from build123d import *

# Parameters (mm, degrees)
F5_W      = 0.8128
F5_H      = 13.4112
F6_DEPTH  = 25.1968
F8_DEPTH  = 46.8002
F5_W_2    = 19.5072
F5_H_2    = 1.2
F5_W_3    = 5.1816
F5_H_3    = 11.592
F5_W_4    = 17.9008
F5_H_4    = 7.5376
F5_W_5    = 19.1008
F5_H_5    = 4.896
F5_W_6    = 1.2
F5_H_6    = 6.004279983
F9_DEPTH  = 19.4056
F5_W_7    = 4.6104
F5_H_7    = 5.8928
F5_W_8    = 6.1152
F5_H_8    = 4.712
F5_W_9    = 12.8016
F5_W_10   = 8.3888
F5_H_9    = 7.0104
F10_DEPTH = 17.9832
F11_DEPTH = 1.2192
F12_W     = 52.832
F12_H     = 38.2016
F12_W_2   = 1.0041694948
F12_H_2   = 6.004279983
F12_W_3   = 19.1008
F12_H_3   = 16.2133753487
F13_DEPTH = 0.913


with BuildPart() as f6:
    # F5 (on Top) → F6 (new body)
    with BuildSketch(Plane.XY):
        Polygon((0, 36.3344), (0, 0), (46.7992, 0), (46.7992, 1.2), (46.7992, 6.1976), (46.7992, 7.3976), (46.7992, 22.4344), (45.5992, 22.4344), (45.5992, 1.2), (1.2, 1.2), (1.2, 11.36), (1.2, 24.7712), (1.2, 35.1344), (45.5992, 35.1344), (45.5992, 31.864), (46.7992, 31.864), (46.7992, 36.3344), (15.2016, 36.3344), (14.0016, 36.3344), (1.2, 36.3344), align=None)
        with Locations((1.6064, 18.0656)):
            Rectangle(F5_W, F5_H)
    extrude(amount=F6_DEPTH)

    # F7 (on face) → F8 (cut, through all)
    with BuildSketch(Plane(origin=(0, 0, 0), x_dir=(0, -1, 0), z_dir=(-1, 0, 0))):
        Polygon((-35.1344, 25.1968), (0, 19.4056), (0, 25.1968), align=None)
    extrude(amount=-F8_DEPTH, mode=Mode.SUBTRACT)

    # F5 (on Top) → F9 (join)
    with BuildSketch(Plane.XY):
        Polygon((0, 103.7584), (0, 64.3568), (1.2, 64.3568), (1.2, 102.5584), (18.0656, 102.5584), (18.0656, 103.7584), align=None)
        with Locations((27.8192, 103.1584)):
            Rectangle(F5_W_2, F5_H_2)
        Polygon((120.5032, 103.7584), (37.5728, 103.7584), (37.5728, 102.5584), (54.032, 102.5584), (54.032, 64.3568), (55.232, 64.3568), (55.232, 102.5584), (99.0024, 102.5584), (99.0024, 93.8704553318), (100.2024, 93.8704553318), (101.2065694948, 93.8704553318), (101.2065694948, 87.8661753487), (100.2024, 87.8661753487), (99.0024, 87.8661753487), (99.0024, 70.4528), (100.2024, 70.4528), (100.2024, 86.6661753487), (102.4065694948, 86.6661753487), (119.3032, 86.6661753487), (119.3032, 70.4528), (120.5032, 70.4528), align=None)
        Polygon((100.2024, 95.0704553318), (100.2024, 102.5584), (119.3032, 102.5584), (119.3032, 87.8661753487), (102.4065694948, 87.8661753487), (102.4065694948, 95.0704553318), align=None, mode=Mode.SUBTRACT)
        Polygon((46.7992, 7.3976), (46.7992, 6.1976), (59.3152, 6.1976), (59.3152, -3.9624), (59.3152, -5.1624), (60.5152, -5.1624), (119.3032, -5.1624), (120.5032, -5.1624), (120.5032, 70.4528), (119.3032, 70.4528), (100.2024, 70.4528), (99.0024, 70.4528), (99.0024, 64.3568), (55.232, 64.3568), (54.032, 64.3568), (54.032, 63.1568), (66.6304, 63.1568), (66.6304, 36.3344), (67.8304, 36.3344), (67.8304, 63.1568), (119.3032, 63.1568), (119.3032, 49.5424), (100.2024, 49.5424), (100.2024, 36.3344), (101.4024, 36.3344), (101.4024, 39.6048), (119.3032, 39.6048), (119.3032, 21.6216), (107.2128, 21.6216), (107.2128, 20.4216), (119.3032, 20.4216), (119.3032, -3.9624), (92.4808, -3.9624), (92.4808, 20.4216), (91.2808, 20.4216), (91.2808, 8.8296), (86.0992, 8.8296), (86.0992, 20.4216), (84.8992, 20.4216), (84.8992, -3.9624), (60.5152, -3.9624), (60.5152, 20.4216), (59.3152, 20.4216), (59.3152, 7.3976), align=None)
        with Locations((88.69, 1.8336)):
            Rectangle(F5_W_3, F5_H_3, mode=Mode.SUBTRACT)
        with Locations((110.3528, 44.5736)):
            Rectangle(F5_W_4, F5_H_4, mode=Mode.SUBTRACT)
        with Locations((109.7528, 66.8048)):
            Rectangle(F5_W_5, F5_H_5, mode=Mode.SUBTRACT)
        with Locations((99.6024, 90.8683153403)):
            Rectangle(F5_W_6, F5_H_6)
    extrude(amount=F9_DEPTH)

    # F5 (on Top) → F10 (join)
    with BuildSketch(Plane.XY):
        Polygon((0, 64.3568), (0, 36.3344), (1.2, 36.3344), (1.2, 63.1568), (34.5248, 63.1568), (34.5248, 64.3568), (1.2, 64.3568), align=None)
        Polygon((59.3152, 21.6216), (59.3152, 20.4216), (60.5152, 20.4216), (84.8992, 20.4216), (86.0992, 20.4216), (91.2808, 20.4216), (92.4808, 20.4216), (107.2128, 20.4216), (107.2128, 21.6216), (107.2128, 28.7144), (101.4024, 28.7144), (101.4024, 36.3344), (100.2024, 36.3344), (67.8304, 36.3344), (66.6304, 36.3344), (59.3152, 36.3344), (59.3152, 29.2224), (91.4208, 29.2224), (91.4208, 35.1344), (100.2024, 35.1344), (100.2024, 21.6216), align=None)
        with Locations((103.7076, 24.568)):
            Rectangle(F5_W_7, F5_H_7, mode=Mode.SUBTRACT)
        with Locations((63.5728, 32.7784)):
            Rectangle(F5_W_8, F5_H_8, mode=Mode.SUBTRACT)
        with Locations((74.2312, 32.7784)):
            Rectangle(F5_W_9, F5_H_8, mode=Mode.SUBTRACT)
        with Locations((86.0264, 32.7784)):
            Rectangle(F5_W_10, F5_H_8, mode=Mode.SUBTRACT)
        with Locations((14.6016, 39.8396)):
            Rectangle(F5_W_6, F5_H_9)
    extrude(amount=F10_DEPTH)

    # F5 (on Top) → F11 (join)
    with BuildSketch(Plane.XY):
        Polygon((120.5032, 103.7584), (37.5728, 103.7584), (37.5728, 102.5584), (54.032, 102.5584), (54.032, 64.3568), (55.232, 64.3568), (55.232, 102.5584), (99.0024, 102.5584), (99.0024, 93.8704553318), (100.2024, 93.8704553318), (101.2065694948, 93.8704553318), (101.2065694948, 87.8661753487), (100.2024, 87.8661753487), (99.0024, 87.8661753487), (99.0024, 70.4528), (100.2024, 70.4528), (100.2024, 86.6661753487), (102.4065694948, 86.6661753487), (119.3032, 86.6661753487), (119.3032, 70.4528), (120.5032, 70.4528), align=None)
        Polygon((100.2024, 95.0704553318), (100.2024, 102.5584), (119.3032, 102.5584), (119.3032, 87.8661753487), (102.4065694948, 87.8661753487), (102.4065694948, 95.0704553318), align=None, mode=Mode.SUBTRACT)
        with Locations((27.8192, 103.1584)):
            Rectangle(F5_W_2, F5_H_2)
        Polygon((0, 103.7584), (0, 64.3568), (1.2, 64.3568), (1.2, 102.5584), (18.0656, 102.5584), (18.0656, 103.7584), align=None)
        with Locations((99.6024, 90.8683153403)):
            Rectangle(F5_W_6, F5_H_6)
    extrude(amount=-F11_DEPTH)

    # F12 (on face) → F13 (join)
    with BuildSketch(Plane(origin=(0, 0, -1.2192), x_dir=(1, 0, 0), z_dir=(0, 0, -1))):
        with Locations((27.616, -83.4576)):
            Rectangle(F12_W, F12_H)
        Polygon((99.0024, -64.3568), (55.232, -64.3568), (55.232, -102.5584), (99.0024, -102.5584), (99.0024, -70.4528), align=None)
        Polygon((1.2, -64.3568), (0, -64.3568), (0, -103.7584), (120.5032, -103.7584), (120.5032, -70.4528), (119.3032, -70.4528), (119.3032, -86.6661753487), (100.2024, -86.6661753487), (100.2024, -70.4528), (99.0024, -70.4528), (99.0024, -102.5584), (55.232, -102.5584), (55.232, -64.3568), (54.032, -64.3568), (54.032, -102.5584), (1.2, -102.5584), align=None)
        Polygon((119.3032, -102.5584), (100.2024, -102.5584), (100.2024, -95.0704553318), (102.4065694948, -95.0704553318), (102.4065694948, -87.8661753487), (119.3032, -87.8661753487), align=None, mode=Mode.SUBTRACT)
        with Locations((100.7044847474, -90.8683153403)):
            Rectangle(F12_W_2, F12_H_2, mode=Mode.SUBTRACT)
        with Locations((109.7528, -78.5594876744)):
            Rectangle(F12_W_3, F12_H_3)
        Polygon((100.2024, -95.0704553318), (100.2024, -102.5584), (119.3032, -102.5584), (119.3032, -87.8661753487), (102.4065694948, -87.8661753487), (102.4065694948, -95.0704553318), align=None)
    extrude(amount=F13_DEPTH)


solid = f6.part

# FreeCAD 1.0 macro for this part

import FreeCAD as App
import Part
import Sketcher

V = App.Vector
Q = App.Units.Quantity


def add_polygon(sketch, points):
    """Adds a closed chain of lines whose ends are joined by coincident constraints."""
    first, n = sketch.GeometryCount, len(points)
    for a, b in zip(points, points[1:] + points[:1]):
        sketch.addGeometry(Part.LineSegment(App.Vector(*a, 0), App.Vector(*b, 0)), False)
    for i in range(n):
        sketch.addConstraint(Sketcher.Constraint("Coincident", first + i, 2, first + (i + 1) % n, 1))

doc = App.newDocument("Part")
body = doc.addObject("PartDesign::Body", "Body")

# Sketch on XY plane
sketch1 = body.newObject("Sketcher::SketchObject", "Sketch")
sketch1.AttachmentSupport = (doc.getObject("XY_Plane"), [""])
sketch1.MapMode = "FlatFace"
add_polygon(sketch1, [(0, 36.3), (0, 0), (46.8, 0), (46.8, 22.4), (45.6, 22.4), (45.6, 1.2), (1.2, 1.2), (1.2, 11.4), (2, 11.4), (2, 24.8), (1.2, 24.8), (1.2, 35.1), (45.6, 35.1), (45.6, 31.9), (46.8, 31.9), (46.8, 36.3)])  # lines 0-15
sketch1.addConstraint(Sketcher.Constraint("Vertical", 0))
sketch1.addConstraint(Sketcher.Constraint("Horizontal", 1))
sketch1.addConstraint(Sketcher.Constraint("Vertical", 2))
sketch1.addConstraint(Sketcher.Constraint("Horizontal", 3))
sketch1.addConstraint(Sketcher.Constraint("Vertical", 4))
sketch1.addConstraint(Sketcher.Constraint("Horizontal", 5))
sketch1.addConstraint(Sketcher.Constraint("Vertical", 6))
sketch1.addConstraint(Sketcher.Constraint("Horizontal", 7))
sketch1.addConstraint(Sketcher.Constraint("Vertical", 8))
sketch1.addConstraint(Sketcher.Constraint("Horizontal", 9))
sketch1.addConstraint(Sketcher.Constraint("Vertical", 10))
sketch1.addConstraint(Sketcher.Constraint("Horizontal", 11))
sketch1.addConstraint(Sketcher.Constraint("Vertical", 12))
sketch1.addConstraint(Sketcher.Constraint("Horizontal", 13))
sketch1.addConstraint(Sketcher.Constraint("Vertical", 14))
sketch1.addConstraint(Sketcher.Constraint("Horizontal", 15))
sketch1.addConstraint(Sketcher.Constraint("Coincident", 0, 2, -1, 1))
sketch1.addConstraint(Sketcher.Constraint("Vertical", 6, 2, 9, 2))
sketch1.addConstraint(Sketcher.Constraint("Vertical", 4, 2, 11, 2))
sketch1.addConstraint(Sketcher.Constraint("Vertical", 2, 2, 13, 2))
sketch1.addConstraint(Sketcher.Constraint("DistanceY", 6, 1, 6, 2, Q("0.4 in")))
sketch1.addConstraint(Sketcher.Constraint("DistanceY", 3, 2, 11, 2, Q("0.5 in")))
sketch1.addConstraint(Sketcher.Constraint("DistanceX", 5, 2, 5, 1, Q("1.748 in")))
sketch1.addConstraint(Sketcher.Constraint("DistanceX", 7, 1, 7, 2, Q("0.032 in")))
sketch1.addConstraint(Sketcher.Constraint("DistanceY", 4, 2, 4, 1, Q("0.836 in")))
sketch1.addConstraint(Sketcher.Constraint("DistanceY", 8, 1, 8, 2, Q("0.528 in")))
sketch1.addConstraint(Sketcher.Constraint("DistanceY", 14, 1, 14, 2, Q("0.176 in")))
sketch1.addConstraint(Sketcher.Constraint("DistanceX", 1, 1, 1, 2, Q("46.7992 mm")))
sketch1.addConstraint(Sketcher.Constraint("DistanceX", 3, 2, 3, 1, Q("1.2 mm")))
sketch1.addConstraint(Sketcher.Constraint("DistanceY", 0, 2, 0, 1, Q("36.3344 mm")))
sketch1.addConstraint(Sketcher.Constraint("DistanceY", 2, 1, 2, 2, Q("22.4344 mm")))
pad1 = body.newObject("PartDesign::Pad", "Pad")
pad1.Profile = sketch1
pad1.Length = Q("0.992 in")

# Sketch on YZ plane
sketch2 = body.newObject("Sketcher::SketchObject", "Sketch001")
sketch2.AttachmentSupport = (doc.getObject("YZ_Plane"), [""])
sketch2.MapMode = "FlatFace"
add_polygon(sketch2, [(35, 25), (0, 19), (0, 25)])  # lines 0-2
sketch2.addConstraint(Sketcher.Constraint("Vertical", 1))
sketch2.addConstraint(Sketcher.Constraint("Horizontal", 2))
sketch2.addConstraint(Sketcher.Constraint("PointOnObject", 0, 2, -2))
sketch2.addConstraint(Sketcher.Constraint("DistanceY", 1, 1, 1, 2, Q("0.228 in")))
sketch2.addConstraint(Sketcher.Constraint("DistanceY", -1, 1, 0, 2, Q("0.764 in")))
sketch2.addConstraint(Sketcher.Constraint("DistanceX", 2, 1, 2, 2, Q("35.1344 mm")))
pocket1 = body.newObject("PartDesign::Pocket", "Pocket")
pocket1.Profile = sketch2
pocket1.Type = "ThroughAll"
pocket1.Reversed = True

# Sketch on XY plane
sketch3 = body.newObject("Sketcher::SketchObject", "Sketch002")
sketch3.AttachmentSupport = (doc.getObject("XY_Plane"), [""])
sketch3.MapMode = "FlatFace"
add_polygon(sketch3, [(120.5, 103.8), (0, 103.8), (0, 64.4), (1.2, 64.4), (1.2, 102.6), (54, 102.6), (54, 63.2), (66.6, 63.2), (66.6, 36.3), (67.8, 36.3), (67.8, 63.2), (119.3, 63.2), (119.3, 49.5), (100.2, 49.5), (100.2, 36.3), (101.4, 36.3), (101.4, 39.6), (119.3, 39.6), (119.3, 21.6), (107.2, 21.6), (107.2, 20.4), (119.3, 20.4), (119.3, -4), (92.5, -4), (92.5, 20.4), (91.3, 20.4), (91.3, 8.8), (86.1, 8.8), (86.1, 20.4), (84.9, 20.4), (84.9, -4), (60.5, -4), (60.5, 20.4), (59.3, 20.4), (59.3, 7.4), (46.8, 7.4), (46.8, 6.2), (59.3, 6.2), (59.3, -5.2), (120.5, -5.2)])  # lines 0-39
add_polygon(sketch3, [(91.3, -4), (86.1, -4), (86.1, 7.6), (91.3, 7.6)])  # lines 40-43
add_polygon(sketch3, [(119.3, 40.8), (101.4, 40.8), (101.4, 48.3), (119.3, 48.3)])  # lines 44-47
add_polygon(sketch3, [(99, 102.6), (99, 64.4), (55.2, 64.4), (55.2, 102.6)])  # lines 48-51
add_polygon(sketch3, [(119.3, 64.4), (100.2, 64.4), (100.2, 69.3), (119.3, 69.3)])  # lines 52-55
add_polygon(sketch3, [(101.2, 87.9), (100.2, 87.9), (100.2, 93.9), (101.2, 93.9)])  # lines 56-59
add_polygon(sketch3, [(119.3, 86.7), (119.3, 70.5), (100.2, 70.5), (100.2, 86.7)])  # lines 60-63
add_polygon(sketch3, [(102.4, 95.1), (100.2, 95.1), (100.2, 102.6), (119.3, 102.6), (119.3, 87.9), (102.4, 87.9)])  # lines 64-69
sketch3.addConstraint(Sketcher.Constraint("Horizontal", 0))
sketch3.addConstraint(Sketcher.Constraint("Vertical", 1))
sketch3.addConstraint(Sketcher.Constraint("Horizontal", 2))
sketch3.addConstraint(Sketcher.Constraint("Vertical", 3))
sketch3.addConstraint(Sketcher.Constraint("Horizontal", 4))
sketch3.addConstraint(Sketcher.Constraint("Vertical", 5))
sketch3.addConstraint(Sketcher.Constraint("Horizontal", 6))
sketch3.addConstraint(Sketcher.Constraint("Vertical", 7))
sketch3.addConstraint(Sketcher.Constraint("Horizontal", 8))
sketch3.addConstraint(Sketcher.Constraint("Vertical", 9))
sketch3.addConstraint(Sketcher.Constraint("Horizontal", 10))
sketch3.addConstraint(Sketcher.Constraint("Vertical", 11))
sketch3.addConstraint(Sketcher.Constraint("Horizontal", 12))
sketch3.addConstraint(Sketcher.Constraint("Vertical", 13))
sketch3.addConstraint(Sketcher.Constraint("Horizontal", 14))
sketch3.addConstraint(Sketcher.Constraint("Vertical", 15))
sketch3.addConstraint(Sketcher.Constraint("Horizontal", 16))
sketch3.addConstraint(Sketcher.Constraint("Vertical", 17))
sketch3.addConstraint(Sketcher.Constraint("Horizontal", 18))
sketch3.addConstraint(Sketcher.Constraint("Vertical", 19))
sketch3.addConstraint(Sketcher.Constraint("Horizontal", 20))
sketch3.addConstraint(Sketcher.Constraint("Vertical", 21))
sketch3.addConstraint(Sketcher.Constraint("Horizontal", 22))
sketch3.addConstraint(Sketcher.Constraint("Vertical", 23))
sketch3.addConstraint(Sketcher.Constraint("Horizontal", 24))
sketch3.addConstraint(Sketcher.Constraint("Vertical", 25))
sketch3.addConstraint(Sketcher.Constraint("Horizontal", 26))
sketch3.addConstraint(Sketcher.Constraint("Vertical", 27))
sketch3.addConstraint(Sketcher.Constraint("Horizontal", 28))
sketch3.addConstraint(Sketcher.Constraint("Vertical", 29))
sketch3.addConstraint(Sketcher.Constraint("Horizontal", 30))
sketch3.addConstraint(Sketcher.Constraint("Vertical", 31))
sketch3.addConstraint(Sketcher.Constraint("Horizontal", 32))
sketch3.addConstraint(Sketcher.Constraint("Vertical", 33))
sketch3.addConstraint(Sketcher.Constraint("Horizontal", 34))
sketch3.addConstraint(Sketcher.Constraint("Vertical", 35))
sketch3.addConstraint(Sketcher.Constraint("Horizontal", 36))
sketch3.addConstraint(Sketcher.Constraint("Vertical", 37))
sketch3.addConstraint(Sketcher.Constraint("Horizontal", 38))
sketch3.addConstraint(Sketcher.Constraint("Vertical", 39))
sketch3.addConstraint(Sketcher.Constraint("Horizontal", 40))
sketch3.addConstraint(Sketcher.Constraint("Vertical", 41))
sketch3.addConstraint(Sketcher.Constraint("Horizontal", 42))
sketch3.addConstraint(Sketcher.Constraint("Vertical", 43))
sketch3.addConstraint(Sketcher.Constraint("Horizontal", 44))
sketch3.addConstraint(Sketcher.Constraint("Vertical", 45))
sketch3.addConstraint(Sketcher.Constraint("Horizontal", 46))
sketch3.addConstraint(Sketcher.Constraint("Vertical", 47))
sketch3.addConstraint(Sketcher.Constraint("Vertical", 48))
sketch3.addConstraint(Sketcher.Constraint("Horizontal", 49))
sketch3.addConstraint(Sketcher.Constraint("Vertical", 50))
sketch3.addConstraint(Sketcher.Constraint("Horizontal", 51))
sketch3.addConstraint(Sketcher.Constraint("Horizontal", 52))
sketch3.addConstraint(Sketcher.Constraint("Vertical", 53))
sketch3.addConstraint(Sketcher.Constraint("Horizontal", 54))
sketch3.addConstraint(Sketcher.Constraint("Vertical", 55))
sketch3.addConstraint(Sketcher.Constraint("Horizontal", 56))
sketch3.addConstraint(Sketcher.Constraint("Vertical", 57))
sketch3.addConstraint(Sketcher.Constraint("Horizontal", 58))
sketch3.addConstraint(Sketcher.Constraint("Vertical", 59))
sketch3.addConstraint(Sketcher.Constraint("Vertical", 60))
sketch3.addConstraint(Sketcher.Constraint("Horizontal", 61))
sketch3.addConstraint(Sketcher.Constraint("Vertical", 62))
sketch3.addConstraint(Sketcher.Constraint("Horizontal", 63))
sketch3.addConstraint(Sketcher.Constraint("Horizontal", 64))
sketch3.addConstraint(Sketcher.Constraint("Vertical", 65))
sketch3.addConstraint(Sketcher.Constraint("Horizontal", 66))
sketch3.addConstraint(Sketcher.Constraint("Vertical", 67))
sketch3.addConstraint(Sketcher.Constraint("Horizontal", 68))
sketch3.addConstraint(Sketcher.Constraint("Vertical", 69))
sketch3.addConstraint(Sketcher.Constraint("PointOnObject", 0, 2, -2))
sketch3.addConstraint(Sketcher.Constraint("Horizontal", 6, 2, 9, 2))
sketch3.addConstraint(Sketcher.Constraint("Horizontal", 8, 2, 13, 2))
sketch3.addConstraint(Sketcher.Constraint("Horizontal", 20, 2, 23, 2))
sketch3.addConstraint(Sketcher.Constraint("Horizontal", 24, 2, 27, 2))
sketch3.addConstraint(Sketcher.Constraint("Horizontal", 22, 2, 29, 2))
sketch3.addConstraint(Sketcher.Constraint("Horizontal", 28, 2, 31, 2))
sketch3.addConstraint(Sketcher.Constraint("Horizontal", 30, 2, 40, 2))
sketch3.addConstraint(Sketcher.Constraint("Horizontal", 2, 2, 48, 2))
sketch3.addConstraint(Sketcher.Constraint("Horizontal", 4, 2, 50, 2))
sketch3.addConstraint(Sketcher.Constraint("Horizontal", 49, 2, 52, 2))
sketch3.addConstraint(Sketcher.Constraint("Horizontal", 51, 2, 65, 2))
sketch3.addConstraint(Sketcher.Constraint("Horizontal", 59, 2, 67, 2))
sketch3.addConstraint(Sketcher.Constraint("Vertical", 11, 2, 16, 2))
sketch3.addConstraint(Sketcher.Constraint("Vertical", 17, 2, 20, 2))
sketch3.addConstraint(Sketcher.Constraint("Vertical", 33, 2, 36, 2))
sketch3.addConstraint(Sketcher.Constraint("Vertical", 27, 2, 40, 2))
sketch3.addConstraint(Sketcher.Constraint("Vertical", 25, 2, 42, 2))
sketch3.addConstraint(Sketcher.Constraint("Vertical", 15, 2, 44, 2))
sketch3.addConstraint(Sketcher.Constraint("Vertical", 21, 2, 46, 2))
sketch3.addConstraint(Sketcher.Constraint("Vertical", 13, 2, 52, 2))
sketch3.addConstraint(Sketcher.Constraint("Vertical", 47, 2, 54, 2))
sketch3.addConstraint(Sketcher.Constraint("Vertical", 53, 2, 56, 2))
sketch3.addConstraint(Sketcher.Constraint("Vertical", 55, 2, 60, 2))
sketch3.addConstraint(Sketcher.Constraint("Vertical", 57, 2, 61, 2))
sketch3.addConstraint(Sketcher.Constraint("Vertical", 62, 2, 64, 2))
sketch3.addConstraint(Sketcher.Constraint("Vertical", 63, 2, 66, 2))
sketch3.addConstraint(Sketcher.Constraint("Equal", 2, 8))
sketch3.addConstraint(Sketcher.Constraint("Equal", 8, 14))
sketch3.addConstraint(Sketcher.Constraint("Equal", 14, 24))
sketch3.addConstraint(Sketcher.Constraint("Equal", 24, 28))
sketch3.addConstraint(Sketcher.Constraint("Equal", 28, 32))
sketch3.addConstraint(Sketcher.Constraint("Equal", 1, 5))
sketch3.addConstraint(Sketcher.Constraint("Equal", 22, 7))
sketch3.addConstraint(Sketcher.Constraint("Equal", 32, 19))
sketch3.addConstraint(Sketcher.Constraint("Equal", 30, 21))
sketch3.addConstraint(Sketcher.Constraint("Equal", 19, 35))
sketch3.addConstraint(Sketcher.Constraint("Equal", 27, 41))
sketch3.addConstraint(Sketcher.Constraint("DistanceX", 4, 1, 4, 2, Q("2.08 in")))
sketch3.addConstraint(Sketcher.Constraint("DistanceX", 30, 2, 30, 1, Q("0.96 in")))
sketch3.addConstraint(Sketcher.Constraint("DistanceY", 13, 2, 13, 1, Q("0.52 in")))
sketch3.addConstraint(Sketcher.Constraint("DistanceX", 6, 1, 6, 2, Q("0.496 in")))
sketch3.addConstraint(Sketcher.Constraint("DistanceX", 12, 2, 12, 1, Q("0.752 in")))
sketch3.addConstraint(Sketcher.Constraint("DistanceX", 18, 2, 18, 1, Q("0.476 in")))
sketch3.addConstraint(Sketcher.Constraint("DistanceX", 22, 2, 22, 1, Q("1.056 in")))
sketch3.addConstraint(Sketcher.Constraint("DistanceX", 26, 2, 26, 1, Q("0.204 in")))
sketch3.addConstraint(Sketcher.Constraint("DistanceY", 3, 1, 3, 2, Q("1.504 in")))
sketch3.addConstraint(Sketcher.Constraint("DistanceY", 17, 2, 17, 1, Q("0.708 in")))
sketch3.addConstraint(Sketcher.Constraint("DistanceY", -1, 1, 19, 2, Q("0.804 in")))
sketch3.addConstraint(Sketcher.Constraint("DistanceY", -1, 1, 35, 2, Q("0.244 in")))
sketch3.addConstraint(Sketcher.Constraint("DistanceX", 0, 2, 0, 1, Q("120.5032 mm")))
sketch3.addConstraint(Sketcher.Constraint("DistanceX", 2, 1, 2, 2, Q("1.2 mm")))
sketch3.addConstraint(Sketcher.Constraint("DistanceX", 10, 1, 10, 2, Q("51.4728 mm")))
sketch3.addConstraint(Sketcher.Constraint("DistanceX", 34, 2, 34, 1, Q("12.516 mm")))
sketch3.addConstraint(Sketcher.Constraint("DistanceX", 49, 2, 49, 1, Q("43.7704 mm")))
sketch3.addConstraint(Sketcher.Constraint("DistanceY", 1, 2, 1, 1, Q("39.4016 mm")))
sketch3.addConstraint(Sketcher.Constraint("DistanceY", 15, 1, 15, 2, Q("3.2704 mm")))
sketch3.addConstraint(Sketcher.Constraint("DistanceY", 25, 2, 25, 1, Q("11.592 mm")))
sketch3.addConstraint(Sketcher.Constraint("DistanceY", 37, 2, 37, 1, Q("11.36 mm")))
sketch3.addConstraint(Sketcher.Constraint("DistanceY", 45, 1, 45, 2, Q("7.5376 mm")))
sketch3.addConstraint(Sketcher.Constraint("DistanceY", 53, 1, 53, 2, Q("4.896 mm")))
sketch3.addConstraint(Sketcher.Constraint("DistanceX", 56, 2, 56, 1, Q("1.004169 mm")))
sketch3.addConstraint(Sketcher.Constraint("DistanceX", 64, 2, 64, 1, Q("2.204169 mm")))
sketch3.addConstraint(Sketcher.Constraint("DistanceY", 57, 1, 57, 2, Q("6.00428 mm")))
sketch3.addConstraint(Sketcher.Constraint("DistanceY", 69, 1, 69, 2, Q("7.20428 mm")))
sketch3.addConstraint(Sketcher.Constraint("DistanceY", -1, 1, 44, 2, Q("40.8048 mm")))
sketch3.addConstraint(Sketcher.Constraint("DistanceX", -1, 1, 48, 2, Q("99.0024 mm")))
sketch3.addConstraint(Sketcher.Constraint("DistanceY", -1, 1, 60, 2, Q("70.4528 mm")))
sketch3.addConstraint(Sketcher.Constraint("DistanceY", 60, 2, 60, 1, Q("16.213375 mm")))
sketch3.addConstraint(Sketcher.Constraint("DistanceY", 65, 1, 65, 2, Q("7.487945 mm")))
pad2 = body.newObject("PartDesign::Pad", "Pad001")
pad2.Profile = sketch3
pad2.Length = Q("0.764 in")

# Sketch on XY plane
sketch4 = body.newObject("Sketcher::SketchObject", "Sketch003")
sketch4.AttachmentSupport = (doc.getObject("XY_Plane"), [""])
sketch4.MapMode = "FlatFace"
add_polygon(sketch4, [(0, 64.4), (0, 36.3), (1.2, 36.3), (1.2, 63.2), (34.5, 63.2), (34.5, 64.4)])  # lines 0-5
add_polygon(sketch4, [(59.3, 21.6), (59.3, 20.4), (107.2, 20.4), (107.2, 28.7), (101.4, 28.7), (101.4, 36.3), (59.3, 36.3), (59.3, 29.2), (91.4, 29.2), (91.4, 35.1), (100.2, 35.1), (100.2, 21.6)])  # lines 6-17
add_polygon(sketch4, [(106, 21.6), (101.4, 21.6), (101.4, 27.5), (106, 27.5)])  # lines 18-21
add_polygon(sketch4, [(66.6, 30.4), (60.5, 30.4), (60.5, 35.1), (66.6, 35.1)])  # lines 22-25
add_polygon(sketch4, [(80.6, 30.4), (67.8, 30.4), (67.8, 35.1), (80.6, 35.1)])  # lines 26-29
add_polygon(sketch4, [(90.2, 30.4), (81.8, 30.4), (81.8, 35.1), (90.2, 35.1)])  # lines 30-33
add_polygon(sketch4, [(14, 43.3), (14, 36.3), (15.2, 36.3), (15.2, 43.3)])  # lines 34-37
sketch4.addConstraint(Sketcher.Constraint("Vertical", 0))
sketch4.addConstraint(Sketcher.Constraint("Horizontal", 1))
sketch4.addConstraint(Sketcher.Constraint("Vertical", 2))
sketch4.addConstraint(Sketcher.Constraint("Horizontal", 3))
sketch4.addConstraint(Sketcher.Constraint("Vertical", 4))
sketch4.addConstraint(Sketcher.Constraint("Horizontal", 5))
sketch4.addConstraint(Sketcher.Constraint("Vertical", 6))
sketch4.addConstraint(Sketcher.Constraint("Horizontal", 7))
sketch4.addConstraint(Sketcher.Constraint("Vertical", 8))
sketch4.addConstraint(Sketcher.Constraint("Horizontal", 9))
sketch4.addConstraint(Sketcher.Constraint("Vertical", 10))
sketch4.addConstraint(Sketcher.Constraint("Horizontal", 11))
sketch4.addConstraint(Sketcher.Constraint("Vertical", 12))
sketch4.addConstraint(Sketcher.Constraint("Horizontal", 13))
sketch4.addConstraint(Sketcher.Constraint("Vertical", 14))
sketch4.addConstraint(Sketcher.Constraint("Horizontal", 15))
sketch4.addConstraint(Sketcher.Constraint("Vertical", 16))
sketch4.addConstraint(Sketcher.Constraint("Horizontal", 17))
sketch4.addConstraint(Sketcher.Constraint("Horizontal", 18))
sketch4.addConstraint(Sketcher.Constraint("Vertical", 19))
sketch4.addConstraint(Sketcher.Constraint("Horizontal", 20))
sketch4.addConstraint(Sketcher.Constraint("Vertical", 21))
sketch4.addConstraint(Sketcher.Constraint("Horizontal", 22))
sketch4.addConstraint(Sketcher.Constraint("Vertical", 23))
sketch4.addConstraint(Sketcher.Constraint("Horizontal", 24))
sketch4.addConstraint(Sketcher.Constraint("Vertical", 25))
sketch4.addConstraint(Sketcher.Constraint("Horizontal", 26))
sketch4.addConstraint(Sketcher.Constraint("Vertical", 27))
sketch4.addConstraint(Sketcher.Constraint("Horizontal", 28))
sketch4.addConstraint(Sketcher.Constraint("Vertical", 29))
sketch4.addConstraint(Sketcher.Constraint("Horizontal", 30))
sketch4.addConstraint(Sketcher.Constraint("Vertical", 31))
sketch4.addConstraint(Sketcher.Constraint("Horizontal", 32))
sketch4.addConstraint(Sketcher.Constraint("Vertical", 33))
sketch4.addConstraint(Sketcher.Constraint("Vertical", 34))
sketch4.addConstraint(Sketcher.Constraint("Horizontal", 35))
sketch4.addConstraint(Sketcher.Constraint("Vertical", 36))
sketch4.addConstraint(Sketcher.Constraint("Horizontal", 37))
sketch4.addConstraint(Sketcher.Constraint("PointOnObject", 0, 2, -2))
sketch4.addConstraint(Sketcher.Constraint("Horizontal", 1, 2, 10, 2))
sketch4.addConstraint(Sketcher.Constraint("Horizontal", 17, 2, 18, 2))
sketch4.addConstraint(Sketcher.Constraint("Horizontal", 15, 2, 23, 2))
sketch4.addConstraint(Sketcher.Constraint("Horizontal", 25, 2, 26, 2))
sketch4.addConstraint(Sketcher.Constraint("Horizontal", 24, 2, 27, 2))
sketch4.addConstraint(Sketcher.Constraint("Horizontal", 29, 2, 30, 2))
sketch4.addConstraint(Sketcher.Constraint("Horizontal", 28, 2, 31, 2))
sketch4.addConstraint(Sketcher.Constraint("Horizontal", 11, 2, 34, 2))
sketch4.addConstraint(Sketcher.Constraint("Vertical", 6, 2, 11, 2))
sketch4.addConstraint(Sketcher.Constraint("Vertical", 10, 2, 18, 2))
sketch4.addConstraint(Sketcher.Constraint("Equal", 1, 35))
sketch4.addConstraint(Sketcher.Constraint("Equal", 37, 4))
sketch4.addConstraint(Sketcher.Constraint("Equal", 4, 6))
sketch4.addConstraint(Sketcher.Constraint("DistanceY", 10, 1, 10, 2, Q("0.3 in")))
sketch4.addConstraint(Sketcher.Constraint("DistanceY", 12, 2, 12, 1, Q("0.28 in")))
sketch4.addConstraint(Sketcher.Constraint("DistanceY", 19, 2, 15, 2, Q("0.3 in")))
sketch4.addConstraint(Sketcher.Constraint("DistanceX", 3, 1, 3, 2, Q("1.312 in")))
sketch4.addConstraint(Sketcher.Constraint("DistanceX", 13, 1, 13, 2, Q("1.264 in")))
sketch4.addConstraint(Sketcher.Constraint("DistanceX", 26, 2, 26, 1, Q("0.504 in")))
sketch4.addConstraint(Sketcher.Constraint("DistanceY", 2, 1, 2, 2, Q("1.056 in")))
sketch4.addConstraint(Sketcher.Constraint("DistanceY", 16, 2, 16, 1, Q("0.532 in")))
sketch4.addConstraint(Sketcher.Constraint("DistanceY", 34, 2, 34, 1, Q("0.276 in")))
sketch4.addConstraint(Sketcher.Constraint("DistanceY", -1, 1, 6, 2, Q("0.804 in")))
sketch4.addConstraint(Sketcher.Constraint("DistanceX", -1, 1, 32, 2, Q("3.552 in")))
sketch4.addConstraint(Sketcher.Constraint("DistanceX", 3, 2, 6, 2, Q("0.976 in")))
sketch4.addConstraint(Sketcher.Constraint("DistanceX", 15, 2, 8, 2, Q("0.276 in")))
sketch4.addConstraint(Sketcher.Constraint("DistanceX", 11, 2, 24, 2, Q("0.288 in")))
sketch4.addConstraint(Sketcher.Constraint("DistanceX", 22, 2, 26, 2, Q("0.288 in")))
sketch4.addConstraint(Sketcher.Constraint("DistanceX", 1, 2, 34, 2, Q("0.504 in")))
sketch4.addConstraint(Sketcher.Constraint("DistanceX", 1, 1, 1, 2, Q("1.2 mm")))
sketch4.addConstraint(Sketcher.Constraint("DistanceX", 7, 1, 7, 2, Q("47.8976 mm")))
sketch4.addConstraint(Sketcher.Constraint("DistanceX", 9, 2, 9, 1, Q("5.8104 mm")))
sketch4.addConstraint(Sketcher.Constraint("DistanceX", 18, 2, 18, 1, Q("4.6104 mm")))
sketch4.addConstraint(Sketcher.Constraint("DistanceX", 22, 2, 22, 1, Q("6.1152 mm")))
sketch4.addConstraint(Sketcher.Constraint("DistanceX", 30, 2, 30, 1, Q("8.3888 mm")))
sketch4.addConstraint(Sketcher.Constraint("DistanceY", 8, 1, 8, 2, Q("8.2928 mm")))
sketch4.addConstraint(Sketcher.Constraint("DistanceY", 23, 1, 23, 2, Q("4.712 mm")))
pad3 = body.newObject("PartDesign::Pad", "Pad002")
pad3.Profile = sketch4
pad3.Length = Q("0.708 in")

# Sketch on XY plane
sketch5 = body.newObject("Sketcher::SketchObject", "Sketch004")
sketch5.AttachmentSupport = (doc.getObject("XY_Plane"), [""])
sketch5.MapMode = "FlatFace"
add_polygon(sketch5, [(120.5, 103.8), (0, 103.8), (0, 64.4), (1.2, 64.4), (1.2, 102.6), (54, 102.6), (54, 64.4), (55.2, 64.4), (55.2, 102.6), (99, 102.6), (99, 70.5), (100.2, 70.5), (100.2, 86.7), (119.3, 86.7), (119.3, 70.5), (120.5, 70.5)])  # lines 0-15
add_polygon(sketch5, [(100.2, 93.9), (101.2, 93.9), (101.2, 87.9), (100.2, 87.9)])  # lines 16-19
add_polygon(sketch5, [(102.4, 95.1), (100.2, 95.1), (100.2, 102.6), (119.3, 102.6), (119.3, 87.9), (102.4, 87.9)])  # lines 20-25
sketch5.addConstraint(Sketcher.Constraint("Horizontal", 0))
sketch5.addConstraint(Sketcher.Constraint("Vertical", 1))
sketch5.addConstraint(Sketcher.Constraint("Horizontal", 2))
sketch5.addConstraint(Sketcher.Constraint("Vertical", 3))
sketch5.addConstraint(Sketcher.Constraint("Horizontal", 4))
sketch5.addConstraint(Sketcher.Constraint("Vertical", 5))
sketch5.addConstraint(Sketcher.Constraint("Horizontal", 6))
sketch5.addConstraint(Sketcher.Constraint("Vertical", 7))
sketch5.addConstraint(Sketcher.Constraint("Horizontal", 8))
sketch5.addConstraint(Sketcher.Constraint("Vertical", 9))
sketch5.addConstraint(Sketcher.Constraint("Horizontal", 10))
sketch5.addConstraint(Sketcher.Constraint("Vertical", 11))
sketch5.addConstraint(Sketcher.Constraint("Horizontal", 12))
sketch5.addConstraint(Sketcher.Constraint("Vertical", 13))
sketch5.addConstraint(Sketcher.Constraint("Horizontal", 14))
sketch5.addConstraint(Sketcher.Constraint("Vertical", 15))
sketch5.addConstraint(Sketcher.Constraint("Horizontal", 16))
sketch5.addConstraint(Sketcher.Constraint("Vertical", 17))
sketch5.addConstraint(Sketcher.Constraint("Horizontal", 18))
sketch5.addConstraint(Sketcher.Constraint("Vertical", 19))
sketch5.addConstraint(Sketcher.Constraint("Horizontal", 20))
sketch5.addConstraint(Sketcher.Constraint("Vertical", 21))
sketch5.addConstraint(Sketcher.Constraint("Horizontal", 22))
sketch5.addConstraint(Sketcher.Constraint("Vertical", 23))
sketch5.addConstraint(Sketcher.Constraint("Horizontal", 24))
sketch5.addConstraint(Sketcher.Constraint("Vertical", 25))
sketch5.addConstraint(Sketcher.Constraint("PointOnObject", 0, 2, -2))
sketch5.addConstraint(Sketcher.Constraint("Horizontal", 2, 2, 5, 2))
sketch5.addConstraint(Sketcher.Constraint("Horizontal", 4, 2, 7, 2))
sketch5.addConstraint(Sketcher.Constraint("Horizontal", 10, 2, 13, 2))
sketch5.addConstraint(Sketcher.Constraint("Horizontal", 8, 2, 21, 2))
sketch5.addConstraint(Sketcher.Constraint("Horizontal", 18, 2, 23, 2))
sketch5.addConstraint(Sketcher.Constraint("Vertical", 11, 2, 18, 2))
sketch5.addConstraint(Sketcher.Constraint("Vertical", 19, 2, 20, 2))
sketch5.addConstraint(Sketcher.Constraint("Vertical", 13, 2, 22, 2))
sketch5.addConstraint(Sketcher.Constraint("Equal", 2, 6))
sketch5.addConstraint(Sketcher.Constraint("Equal", 6, 10))
sketch5.addConstraint(Sketcher.Constraint("Equal", 10, 14))
sketch5.addConstraint(Sketcher.Constraint("DistanceX", 4, 1, 4, 2, Q("2.08 in")))
sketch5.addConstraint(Sketcher.Constraint("DistanceX", 12, 1, 12, 2, Q("0.752 in")))
sketch5.addConstraint(Sketcher.Constraint("DistanceY", 3, 1, 3, 2, Q("1.504 in")))
sketch5.addConstraint(Sketcher.Constraint("DistanceY", 9, 2, 9, 1, Q("1.264 in")))
sketch5.addConstraint(Sketcher.Constraint("DistanceX", 0, 2, 0, 1, Q("120.5032 mm")))
sketch5.addConstraint(Sketcher.Constraint("DistanceX", 2, 1, 2, 2, Q("1.2 mm")))
sketch5.addConstraint(Sketcher.Constraint("DistanceY", 1, 2, 1, 1, Q("39.4016 mm")))
sketch5.addConstraint(Sketcher.Constraint("DistanceX", 16, 1, 16, 2, Q("1.004169 mm")))
sketch5.addConstraint(Sketcher.Constraint("DistanceX", 20, 2, 20, 1, Q("2.204169 mm")))
sketch5.addConstraint(Sketcher.Constraint("DistanceY", 17, 2, 17, 1, Q("6.00428 mm")))
sketch5.addConstraint(Sketcher.Constraint("DistanceY", 25, 1, 25, 2, Q("7.20428 mm")))
sketch5.addConstraint(Sketcher.Constraint("DistanceY", -1, 1, 0, 2, Q("103.7584 mm")))
sketch5.addConstraint(Sketcher.Constraint("DistanceY", 11, 2, 17, 2, Q("1.2 mm")))
sketch5.addConstraint(Sketcher.Constraint("DistanceY", 11, 1, 11, 2, Q("16.213375 mm")))
pad4 = body.newObject("PartDesign::Pad", "Pad003")
pad4.Profile = sketch5
pad4.Length = Q("0.048 in")
pad4.Reversed = True

# Sketch on XY plane
sketch6 = body.newObject("Sketcher::SketchObject", "Sketch005")
sketch6.AttachmentSupport = (doc.getObject("XY_Plane"), [""])
sketch6.MapMode = "FlatFace"
sketch6.AttachmentOffset = App.Placement(V(0, 0, -0.048 * 25.4), App.Rotation())
add_polygon(sketch6, [(0, 64.4), (0, 103.8), (120.5, 103.8), (120.5, 70.5), (119.3, 70.5), (100.2, 70.5), (99, 70.5), (99, 64.4)])  # lines 0-7
add_polygon(sketch6, [(101.2, 93.9), (100.2, 93.9), (100.2, 87.9), (101.2, 87.9)])  # lines 8-11
sketch6.addConstraint(Sketcher.Constraint("Vertical", 0))
sketch6.addConstraint(Sketcher.Constraint("Horizontal", 1))
sketch6.addConstraint(Sketcher.Constraint("Vertical", 2))
sketch6.addConstraint(Sketcher.Constraint("Horizontal", 3))
sketch6.addConstraint(Sketcher.Constraint("Horizontal", 4))
sketch6.addConstraint(Sketcher.Constraint("Horizontal", 5))
sketch6.addConstraint(Sketcher.Constraint("Vertical", 6))
sketch6.addConstraint(Sketcher.Constraint("Horizontal", 7))
sketch6.addConstraint(Sketcher.Constraint("Horizontal", 8))
sketch6.addConstraint(Sketcher.Constraint("Vertical", 9))
sketch6.addConstraint(Sketcher.Constraint("Horizontal", 10))
sketch6.addConstraint(Sketcher.Constraint("Vertical", 11))
sketch6.addConstraint(Sketcher.Constraint("PointOnObject", 0, 2, -2))
sketch6.addConstraint(Sketcher.Constraint("Vertical", 4, 2, 8, 2))
sketch6.addConstraint(Sketcher.Constraint("Equal", 3, 5))
sketch6.addConstraint(Sketcher.Constraint("DistanceY", 6, 2, 6, 1, Q("0.24 in")))
sketch6.addConstraint(Sketcher.Constraint("DistanceX", 4, 2, 4, 1, Q("0.752 in")))
sketch6.addConstraint(Sketcher.Constraint("DistanceX", 1, 1, 1, 2, Q("120.5032 mm")))
sketch6.addConstraint(Sketcher.Constraint("DistanceX", 3, 2, 3, 1, Q("1.2 mm")))
sketch6.addConstraint(Sketcher.Constraint("DistanceY", 0, 1, 0, 2, Q("39.4016 mm")))
sketch6.addConstraint(Sketcher.Constraint("DistanceX", 8, 2, 8, 1, Q("1.004169 mm")))
sketch6.addConstraint(Sketcher.Constraint("DistanceY", 9, 2, 9, 1, Q("6.00428 mm")))
sketch6.addConstraint(Sketcher.Constraint("DistanceY", -1, 1, 0, 2, Q("103.7584 mm")))
sketch6.addConstraint(Sketcher.Constraint("DistanceY", -1, 1, 8, 2, Q("93.870455 mm")))
pad5 = body.newObject("PartDesign::Pad", "Pad004")
pad5.Profile = sketch6
pad5.Length = 0.913
pad5.Reversed = True

doc.recompute()
